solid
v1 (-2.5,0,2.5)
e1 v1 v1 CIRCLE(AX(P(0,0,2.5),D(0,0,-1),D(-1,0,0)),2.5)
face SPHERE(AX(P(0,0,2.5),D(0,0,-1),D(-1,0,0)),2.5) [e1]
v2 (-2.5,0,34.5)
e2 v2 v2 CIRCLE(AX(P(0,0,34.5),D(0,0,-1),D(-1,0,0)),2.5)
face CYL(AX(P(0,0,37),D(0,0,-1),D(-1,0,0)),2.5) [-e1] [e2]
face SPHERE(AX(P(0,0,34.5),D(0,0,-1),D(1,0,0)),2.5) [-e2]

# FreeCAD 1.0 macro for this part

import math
import FreeCAD as App
import Part
import Sketcher
from FreeCAD import Vector
Q = App.Units.Quantity

doc = App.newDocument("Part")
body = doc.addObject("PartDesign::Body", "Body")

# Sketch on XZ plane
sketch1 = body.newObject("Sketcher::SketchObject", "Sketch")
sketch1.AttachmentSupport = (doc.getObject("XZ_Plane"), [""])
sketch1.MapMode = "FlatFace"
sketch1.addGeometry(Part.LineSegment(Vector(0, 37, 0), Vector(0, 0, 0)), False)
sketch1.addGeometry(Part.ArcOfCircle(Part.Circle(Vector(0, 2.5, 0), Vector(0, 0, 1), 2.5), math.radians(-90), math.radians(0)), False)
sketch1.addGeometry(Part.LineSegment(Vector(2.5, 2.5, 0), Vector(2.5, 34.5, 0)), False)
sketch1.addGeometry(Part.ArcOfCircle(Part.Circle(Vector(0, 34.5, 0), Vector(0, 0, 1), 2.5), math.radians(0), math.radians(90)), False)
sketch1.addConstraint(Sketcher.Constraint("Coincident", 0, 2, 1, 1))
sketch1.addConstraint(Sketcher.Constraint("Tangent", 1, 2, 2, 1))
sketch1.addConstraint(Sketcher.Constraint("Tangent", 2, 2, 3, 1))
sketch1.addConstraint(Sketcher.Constraint("Coincident", 3, 2, 0, 1))
sketch1.addConstraint(Sketcher.Constraint("Vertical", 0))
sketch1.addConstraint(Sketcher.Constraint("Vertical", 2))
sketch1.addConstraint(Sketcher.Constraint("Coincident", 0, 2, -1, 1))
sketch1.addConstraint(Sketcher.Constraint("Equal", 1, 3))
sketch1.addConstraint(Sketcher.Constraint("PointOnObject", 1, 3, -2))
sketch1.addConstraint(Sketcher.Constraint("Radius", 1, Q("2.5 mm")))
sketch1.addConstraint(Sketcher.Constraint("DistanceY", 0, 2, 0, 1, Q("37 mm")))
revolution = body.newObject("PartDesign::Revolution", "Revolution")
revolution.Profile = sketch1
revolution.ReferenceAxis = (sketch1, ["V_Axis"])
revolution.Angle = 360

doc.recompute()
